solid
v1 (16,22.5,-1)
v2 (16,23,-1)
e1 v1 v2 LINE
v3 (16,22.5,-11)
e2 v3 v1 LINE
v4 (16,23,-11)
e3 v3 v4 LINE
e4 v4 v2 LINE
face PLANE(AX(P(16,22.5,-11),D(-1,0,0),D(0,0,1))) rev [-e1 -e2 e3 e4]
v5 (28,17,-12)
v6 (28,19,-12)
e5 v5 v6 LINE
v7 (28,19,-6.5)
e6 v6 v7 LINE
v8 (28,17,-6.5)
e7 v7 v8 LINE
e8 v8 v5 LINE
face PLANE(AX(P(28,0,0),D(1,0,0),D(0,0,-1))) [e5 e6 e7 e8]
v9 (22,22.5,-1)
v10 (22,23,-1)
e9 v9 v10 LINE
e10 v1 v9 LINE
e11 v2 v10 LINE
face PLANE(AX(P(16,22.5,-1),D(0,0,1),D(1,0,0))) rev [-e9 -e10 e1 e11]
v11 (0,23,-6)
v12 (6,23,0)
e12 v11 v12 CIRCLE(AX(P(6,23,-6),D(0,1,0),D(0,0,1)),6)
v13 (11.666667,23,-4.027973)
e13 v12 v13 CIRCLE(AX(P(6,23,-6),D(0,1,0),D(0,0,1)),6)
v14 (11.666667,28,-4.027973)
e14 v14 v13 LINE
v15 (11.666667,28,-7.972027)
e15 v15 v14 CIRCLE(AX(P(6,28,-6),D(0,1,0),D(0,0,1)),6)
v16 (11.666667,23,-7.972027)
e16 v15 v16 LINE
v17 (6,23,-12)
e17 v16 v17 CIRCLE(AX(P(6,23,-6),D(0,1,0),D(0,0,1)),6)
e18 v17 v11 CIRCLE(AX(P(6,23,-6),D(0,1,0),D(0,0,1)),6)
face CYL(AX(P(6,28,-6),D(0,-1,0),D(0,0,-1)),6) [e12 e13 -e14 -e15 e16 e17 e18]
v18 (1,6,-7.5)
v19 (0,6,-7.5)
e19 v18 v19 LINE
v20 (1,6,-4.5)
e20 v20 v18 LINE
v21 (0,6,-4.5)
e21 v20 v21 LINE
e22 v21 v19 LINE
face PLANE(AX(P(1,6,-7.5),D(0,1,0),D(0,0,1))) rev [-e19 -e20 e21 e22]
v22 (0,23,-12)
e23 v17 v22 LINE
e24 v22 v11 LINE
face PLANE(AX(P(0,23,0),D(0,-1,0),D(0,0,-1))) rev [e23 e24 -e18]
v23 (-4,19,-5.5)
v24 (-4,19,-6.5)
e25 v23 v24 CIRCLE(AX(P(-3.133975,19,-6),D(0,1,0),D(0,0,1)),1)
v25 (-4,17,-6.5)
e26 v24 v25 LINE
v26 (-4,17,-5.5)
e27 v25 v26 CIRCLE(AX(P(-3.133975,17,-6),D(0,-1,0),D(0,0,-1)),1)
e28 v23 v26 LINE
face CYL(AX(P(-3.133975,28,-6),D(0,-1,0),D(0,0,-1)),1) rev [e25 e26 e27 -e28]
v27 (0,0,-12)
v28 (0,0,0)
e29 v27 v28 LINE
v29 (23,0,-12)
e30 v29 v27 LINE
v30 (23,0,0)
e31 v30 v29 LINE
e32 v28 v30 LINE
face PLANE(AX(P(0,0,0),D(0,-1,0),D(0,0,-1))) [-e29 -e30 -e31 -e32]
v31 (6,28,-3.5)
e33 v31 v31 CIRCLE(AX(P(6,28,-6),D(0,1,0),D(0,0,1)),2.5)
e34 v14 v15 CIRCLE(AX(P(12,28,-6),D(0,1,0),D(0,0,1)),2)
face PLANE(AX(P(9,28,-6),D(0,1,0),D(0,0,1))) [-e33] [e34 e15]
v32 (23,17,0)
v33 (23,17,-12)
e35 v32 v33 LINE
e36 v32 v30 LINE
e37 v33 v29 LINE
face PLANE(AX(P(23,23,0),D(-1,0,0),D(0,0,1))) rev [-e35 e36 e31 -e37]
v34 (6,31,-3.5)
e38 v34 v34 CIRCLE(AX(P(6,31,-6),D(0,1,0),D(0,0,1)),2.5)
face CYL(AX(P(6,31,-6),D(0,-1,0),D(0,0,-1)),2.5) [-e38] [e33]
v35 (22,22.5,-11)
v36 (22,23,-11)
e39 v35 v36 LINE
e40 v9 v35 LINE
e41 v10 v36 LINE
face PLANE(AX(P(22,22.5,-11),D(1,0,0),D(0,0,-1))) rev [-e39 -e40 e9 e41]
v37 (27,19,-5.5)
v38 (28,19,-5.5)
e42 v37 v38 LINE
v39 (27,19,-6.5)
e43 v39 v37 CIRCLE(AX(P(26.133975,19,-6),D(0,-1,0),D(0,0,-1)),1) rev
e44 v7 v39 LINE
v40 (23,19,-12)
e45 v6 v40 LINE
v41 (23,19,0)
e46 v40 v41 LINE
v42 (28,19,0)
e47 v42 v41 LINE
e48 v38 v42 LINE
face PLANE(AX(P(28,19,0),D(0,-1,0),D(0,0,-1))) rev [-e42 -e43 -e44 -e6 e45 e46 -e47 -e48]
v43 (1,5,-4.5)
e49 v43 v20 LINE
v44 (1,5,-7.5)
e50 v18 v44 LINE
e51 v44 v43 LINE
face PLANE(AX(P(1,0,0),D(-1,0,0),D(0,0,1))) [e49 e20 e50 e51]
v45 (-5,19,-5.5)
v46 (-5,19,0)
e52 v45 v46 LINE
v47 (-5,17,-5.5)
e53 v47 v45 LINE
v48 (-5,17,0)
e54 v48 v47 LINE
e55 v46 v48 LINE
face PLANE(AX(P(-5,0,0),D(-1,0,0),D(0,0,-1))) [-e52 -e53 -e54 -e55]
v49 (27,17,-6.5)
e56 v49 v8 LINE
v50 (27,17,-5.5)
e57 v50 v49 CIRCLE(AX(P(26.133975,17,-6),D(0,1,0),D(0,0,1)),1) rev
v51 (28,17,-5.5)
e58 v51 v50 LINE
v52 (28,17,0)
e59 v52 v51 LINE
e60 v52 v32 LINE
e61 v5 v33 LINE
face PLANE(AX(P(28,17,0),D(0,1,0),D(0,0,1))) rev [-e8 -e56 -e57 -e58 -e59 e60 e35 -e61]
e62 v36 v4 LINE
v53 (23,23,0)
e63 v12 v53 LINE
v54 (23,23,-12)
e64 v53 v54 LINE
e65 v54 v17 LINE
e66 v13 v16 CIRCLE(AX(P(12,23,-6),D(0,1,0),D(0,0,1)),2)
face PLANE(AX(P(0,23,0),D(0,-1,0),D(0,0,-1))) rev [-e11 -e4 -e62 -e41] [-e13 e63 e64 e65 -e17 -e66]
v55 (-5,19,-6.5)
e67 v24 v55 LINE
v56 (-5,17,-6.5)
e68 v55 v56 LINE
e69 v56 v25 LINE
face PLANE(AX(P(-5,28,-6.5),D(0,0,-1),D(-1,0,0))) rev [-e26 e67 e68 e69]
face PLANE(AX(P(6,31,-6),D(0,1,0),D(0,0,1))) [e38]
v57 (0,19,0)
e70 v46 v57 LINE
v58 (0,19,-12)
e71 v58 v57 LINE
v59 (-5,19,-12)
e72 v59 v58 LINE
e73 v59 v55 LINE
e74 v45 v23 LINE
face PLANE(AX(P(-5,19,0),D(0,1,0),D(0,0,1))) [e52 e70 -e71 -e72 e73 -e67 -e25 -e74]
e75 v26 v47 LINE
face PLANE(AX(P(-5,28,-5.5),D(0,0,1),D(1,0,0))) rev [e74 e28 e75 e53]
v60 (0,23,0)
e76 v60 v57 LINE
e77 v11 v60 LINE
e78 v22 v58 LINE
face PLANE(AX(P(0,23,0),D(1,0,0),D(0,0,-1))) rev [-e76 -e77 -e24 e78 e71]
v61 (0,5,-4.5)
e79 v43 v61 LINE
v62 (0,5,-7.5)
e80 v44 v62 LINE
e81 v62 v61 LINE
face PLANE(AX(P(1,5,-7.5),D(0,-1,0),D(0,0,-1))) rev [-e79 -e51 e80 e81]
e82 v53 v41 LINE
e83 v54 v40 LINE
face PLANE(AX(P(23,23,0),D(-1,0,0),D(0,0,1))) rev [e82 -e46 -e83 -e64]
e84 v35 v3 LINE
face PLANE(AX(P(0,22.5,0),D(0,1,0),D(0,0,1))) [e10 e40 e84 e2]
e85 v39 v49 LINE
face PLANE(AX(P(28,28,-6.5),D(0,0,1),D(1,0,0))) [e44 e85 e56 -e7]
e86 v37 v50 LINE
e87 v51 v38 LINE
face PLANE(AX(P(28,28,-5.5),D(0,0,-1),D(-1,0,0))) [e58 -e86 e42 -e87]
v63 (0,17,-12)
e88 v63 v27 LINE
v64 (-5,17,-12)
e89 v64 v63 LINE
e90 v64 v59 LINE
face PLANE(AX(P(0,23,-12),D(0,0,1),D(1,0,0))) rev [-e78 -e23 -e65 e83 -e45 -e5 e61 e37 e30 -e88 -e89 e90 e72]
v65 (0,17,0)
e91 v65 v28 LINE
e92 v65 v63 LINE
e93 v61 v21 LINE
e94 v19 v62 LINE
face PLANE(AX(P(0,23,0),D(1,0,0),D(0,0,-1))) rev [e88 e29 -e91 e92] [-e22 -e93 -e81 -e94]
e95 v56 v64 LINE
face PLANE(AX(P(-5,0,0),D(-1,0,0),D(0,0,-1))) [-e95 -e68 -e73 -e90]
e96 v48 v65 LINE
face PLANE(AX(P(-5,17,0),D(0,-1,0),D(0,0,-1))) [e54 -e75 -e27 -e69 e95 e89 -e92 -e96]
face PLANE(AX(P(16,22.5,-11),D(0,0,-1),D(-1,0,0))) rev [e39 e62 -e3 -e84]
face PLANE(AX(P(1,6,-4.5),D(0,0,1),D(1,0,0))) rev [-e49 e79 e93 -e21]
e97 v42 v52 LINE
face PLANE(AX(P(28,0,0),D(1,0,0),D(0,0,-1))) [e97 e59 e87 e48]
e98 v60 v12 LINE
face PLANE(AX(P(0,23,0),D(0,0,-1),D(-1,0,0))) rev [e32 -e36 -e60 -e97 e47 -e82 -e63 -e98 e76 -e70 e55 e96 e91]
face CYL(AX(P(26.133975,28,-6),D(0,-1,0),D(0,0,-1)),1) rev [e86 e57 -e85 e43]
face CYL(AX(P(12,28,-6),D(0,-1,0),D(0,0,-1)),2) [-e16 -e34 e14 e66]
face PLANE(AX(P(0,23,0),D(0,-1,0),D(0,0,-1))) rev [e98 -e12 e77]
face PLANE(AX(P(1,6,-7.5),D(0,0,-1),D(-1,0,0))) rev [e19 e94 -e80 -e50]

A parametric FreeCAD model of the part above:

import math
import FreeCAD as App
import Part
import Sketcher

V = App.Vector


def add_polygon(sketch, points):
    """Adds a closed chain of lines whose ends are joined by coincident constraints."""
    first, n = sketch.GeometryCount, len(points)
    for a, b in zip(points, points[1:] + points[:1]):
        sketch.addGeometry(Part.LineSegment(App.Vector(*a, 0), App.Vector(*b, 0)), False)
    for i in range(n):
        sketch.addConstraint(Sketcher.Constraint("Coincident", first + i, 2, first + (i + 1) % n, 1))

doc = App.newDocument("Part")
body = doc.addObject("PartDesign::Body", "Body")

# Sketch on XZ plane
sketch1 = body.newObject("Sketcher::SketchObject", "Sketch")
sketch1.AttachmentSupport = (doc.getObject("XZ_Plane"), [""])
sketch1.MapMode = "FlatFace"
add_polygon(sketch1, [(0, -12), (0, 0), (23, 0), (23, -12)])  # lines 0-3
sketch1.addConstraint(Sketcher.Constraint("Vertical", 0))
sketch1.addConstraint(Sketcher.Constraint("Horizontal", 1))
sketch1.addConstraint(Sketcher.Constraint("Vertical", 2))
sketch1.addConstraint(Sketcher.Constraint("Horizontal", 3))
sketch1.addConstraint(Sketcher.Constraint("Coincident", 0, 2, -1, 1))
sketch1.addConstraint(Sketcher.Constraint("DistanceX", 1, 1, 1, 2, 23.0))
sketch1.addConstraint(Sketcher.Constraint("DistanceY", 0, 1, 0, 2, 12.0))
pad1 = body.newObject("PartDesign::Pad", "Pad")
pad1.Profile = sketch1
pad1.Length = 23
pad1.Reversed = True

# Sketch on XZ plane
sketch2 = body.newObject("Sketcher::SketchObject", "Sketch001")
sketch2.AttachmentSupport = (doc.getObject("XZ_Plane"), [""])
sketch2.MapMode = "FlatFace"
sketch2.AttachmentOffset = App.Placement(V(0, 0, -23), App.Rotation())
sketch2.addGeometry(Part.ArcOfCircle(Part.Circle(V(6, -6, 0), V(0, 0, 1), 6), math.radians(19), math.radians(341)), False)
sketch2.addGeometry(Part.ArcOfCircle(Part.Circle(V(12, -6, 0), V(0, 0, 1), 2), math.radians(-100), math.radians(100)), False)
sketch2.addConstraint(Sketcher.Constraint("Coincident", 0, 1, 1, 2))
sketch2.addConstraint(Sketcher.Constraint("Coincident", 1, 1, 0, 2))
sketch2.addConstraint(Sketcher.Constraint("Horizontal", 0, 3, 1, 3))
sketch2.addConstraint(Sketcher.Constraint("Radius", 0, 6.0))
sketch2.addConstraint(Sketcher.Constraint("Radius", 1, 2.0))
sketch2.addConstraint(Sketcher.Constraint("DistanceX", -1, 1, 0, 3, 6.0))
sketch2.addConstraint(Sketcher.Constraint("DistanceY", 0, 3, -1, 1, 6.0))
sketch2.addConstraint(Sketcher.Constraint("DistanceX", -1, 1, 1, 3, 12.0))
pad2 = body.newObject("PartDesign::Pad", "Pad001")
pad2.Profile = sketch2
pad2.Length = 5
pad2.Reversed = True

# Sketch on YZ plane
sketch3 = body.newObject("Sketcher::SketchObject", "Sketch002")
sketch3.AttachmentSupport = (doc.getObject("YZ_Plane"), [""])
sketch3.MapMode = "FlatFace"
sketch3.AttachmentOffset = App.Placement(V(0, 0, 23), App.Rotation())
add_polygon(sketch3, [(19, 0), (17, 0), (17, -12), (19, -12)])  # lines 0-3
sketch3.addConstraint(Sketcher.Constraint("Horizontal", 0))
sketch3.addConstraint(Sketcher.Constraint("Vertical", 1))
sketch3.addConstraint(Sketcher.Constraint("Horizontal", 2))
sketch3.addConstraint(Sketcher.Constraint("Vertical", 3))
sketch3.addConstraint(Sketcher.Constraint("PointOnObject", 0, 2, -1))
sketch3.addConstraint(Sketcher.Constraint("DistanceX", 0, 2, 0, 1, 2.0))
sketch3.addConstraint(Sketcher.Constraint("DistanceY", 1, 2, 1, 1, 12.0))
sketch3.addConstraint(Sketcher.Constraint("DistanceX", -1, 1, 0, 2, 17.0))
pad3 = body.newObject("PartDesign::Pad", "Pad002")
pad3.Profile = sketch3
pad3.Length = 5

# Sketch on XZ plane
sketch4 = body.newObject("Sketcher::SketchObject", "Sketch003")
sketch4.AttachmentSupport = (doc.getObject("XZ_Plane"), [""])
sketch4.MapMode = "FlatFace"
sketch4.AttachmentOffset = App.Placement(V(0, 0, -14), App.Rotation())
sketch4.addGeometry(Part.LineSegment(V(28, -6.5, 0), V(27, -6.5, 0)), False)
sketch4.addGeometry(Part.ArcOfCircle(Part.Circle(V(26.1, -6, 0), V(0, 0, 1), 1), math.radians(30), math.radians(330)), False)
sketch4.addGeometry(Part.LineSegment(V(27, -5.5, 0), V(28, -5.5, 0)), False)
sketch4.addGeometry(Part.LineSegment(V(28, -5.5, 0), V(28, -6.5, 0)), False)
sketch4.addConstraint(Sketcher.Constraint("Coincident", 0, 2, 1, 2))
sketch4.addConstraint(Sketcher.Constraint("Coincident", 1, 1, 2, 1))
sketch4.addConstraint(Sketcher.Constraint("Coincident", 2, 2, 3, 1))
sketch4.addConstraint(Sketcher.Constraint("Coincident", 3, 2, 0, 1))
sketch4.addConstraint(Sketcher.Constraint("Horizontal", 0))
sketch4.addConstraint(Sketcher.Constraint("Horizontal", 2))
sketch4.addConstraint(Sketcher.Constraint("Vertical", 3))
sketch4.addConstraint(Sketcher.Constraint("Vertical", 0, 2, 1, 1))
sketch4.addConstraint(Sketcher.Constraint("Equal", 2, 3))
sketch4.addConstraint(Sketcher.Constraint("Radius", 1, 1.0))
sketch4.addConstraint(Sketcher.Constraint("DistanceX", 0, 2, 0, 1, 1.0))
sketch4.addConstraint(Sketcher.Constraint("DistanceY", 1, 3, -1, 1, 6.0))
sketch4.addConstraint(Sketcher.Constraint("DistanceX", -1, 1, 0, 2, 27.0))
pocket1 = body.newObject("PartDesign::Pocket", "Pocket")
pocket1.Profile = sketch4
pocket1.Length = 41.902646
doc.recompute()

datumplane = body.newObject("PartDesign::Plane", "DatumPlane")
datumplane.AttachmentSupport = (doc.getObject("YZ_Plane"), [""])
datumplane.MapMode = "FlatFace"
datumplane.AttachmentOffset = App.Placement(V(0, 0, 11.5), App.Rotation())
mirrored = body.newObject("PartDesign::Mirrored", "Mirrored")
mirrored.Originals = [pad3, pocket1]
mirrored.MirrorPlane = (datumplane, [""])
body.Tip = mirrored

# Sketch on XZ plane
sketch5 = body.newObject("Sketcher::SketchObject", "Sketch004")
sketch5.AttachmentSupport = (doc.getObject("XZ_Plane"), [""])
sketch5.MapMode = "FlatFace"
sketch5.AttachmentOffset = App.Placement(V(0, 0, -28), App.Rotation())
sketch5.addGeometry(Part.Circle(V(6, -6, 0), V(0, 0, 1), 2.5), False)
sketch5.addConstraint(Sketcher.Constraint("Diameter", 0, 5.0))
sketch5.addConstraint(Sketcher.Constraint("DistanceX", -1, 1, 0, 3, 6.0))
sketch5.addConstraint(Sketcher.Constraint("DistanceY", 0, 3, -1, 1, 6.0))
pad4 = body.newObject("PartDesign::Pad", "Pad003")
pad4.Profile = sketch5
pad4.Length = 3
pad4.Reversed = True

# Sketch on XZ plane
sketch6 = body.newObject("Sketcher::SketchObject", "Sketch005")
sketch6.AttachmentSupport = (doc.getObject("XZ_Plane"), [""])
sketch6.MapMode = "FlatFace"
sketch6.AttachmentOffset = App.Placement(V(0, 0, -23), App.Rotation())
add_polygon(sketch6, [(16, -11), (16, -1), (22, -1), (22, -11)])  # lines 0-3
sketch6.addConstraint(Sketcher.Constraint("Vertical", 0))
sketch6.addConstraint(Sketcher.Constraint("Horizontal", 1))
sketch6.addConstraint(Sketcher.Constraint("Vertical", 2))
sketch6.addConstraint(Sketcher.Constraint("Horizontal", 3))
sketch6.addConstraint(Sketcher.Constraint("DistanceX", 1, 1, 1, 2, 6.0))
sketch6.addConstraint(Sketcher.Constraint("DistanceY", 0, 1, 0, 2, 10.0))
sketch6.addConstraint(Sketcher.Constraint("DistanceX", -1, 1, 0, 2, 16.0))
sketch6.addConstraint(Sketcher.Constraint("DistanceY", 0, 2, -1, 1, 1.0))
pocket2 = body.newObject("PartDesign::Pocket", "Pocket001")
pocket2.Profile = sketch6
pocket2.Length = 0.5
pocket2.Reversed = True

# Sketch on YZ plane
sketch7 = body.newObject("Sketcher::SketchObject", "Sketch006")
sketch7.AttachmentSupport = (doc.getObject("YZ_Plane"), [""])
sketch7.MapMode = "FlatFace"
add_polygon(sketch7, [(6, -7.5), (5, -7.5), (5, -4.5), (6, -4.5)])  # lines 0-3
sketch7.addConstraint(Sketcher.Constraint("Horizontal", 0))
sketch7.addConstraint(Sketcher.Constraint("Vertical", 1))
sketch7.addConstraint(Sketcher.Constraint("Horizontal", 2))
sketch7.addConstraint(Sketcher.Constraint("Vertical", 3))
sketch7.addConstraint(Sketcher.Constraint("DistanceX", 0, 2, 0, 1, 1.0))
sketch7.addConstraint(Sketcher.Constraint("DistanceY", 1, 1, 1, 2, 3.0))
sketch7.addConstraint(Sketcher.Constraint("DistanceX", -1, 1, 0, 2, 5.0))
sketch7.addConstraint(Sketcher.Constraint("DistanceY", 0, 2, -1, 1, 7.5))
pocket3 = body.newObject("PartDesign::Pocket", "Pocket002")
pocket3.Profile = sketch7
pocket3.Length = 1
pocket3.Reversed = True

doc.recompute()
